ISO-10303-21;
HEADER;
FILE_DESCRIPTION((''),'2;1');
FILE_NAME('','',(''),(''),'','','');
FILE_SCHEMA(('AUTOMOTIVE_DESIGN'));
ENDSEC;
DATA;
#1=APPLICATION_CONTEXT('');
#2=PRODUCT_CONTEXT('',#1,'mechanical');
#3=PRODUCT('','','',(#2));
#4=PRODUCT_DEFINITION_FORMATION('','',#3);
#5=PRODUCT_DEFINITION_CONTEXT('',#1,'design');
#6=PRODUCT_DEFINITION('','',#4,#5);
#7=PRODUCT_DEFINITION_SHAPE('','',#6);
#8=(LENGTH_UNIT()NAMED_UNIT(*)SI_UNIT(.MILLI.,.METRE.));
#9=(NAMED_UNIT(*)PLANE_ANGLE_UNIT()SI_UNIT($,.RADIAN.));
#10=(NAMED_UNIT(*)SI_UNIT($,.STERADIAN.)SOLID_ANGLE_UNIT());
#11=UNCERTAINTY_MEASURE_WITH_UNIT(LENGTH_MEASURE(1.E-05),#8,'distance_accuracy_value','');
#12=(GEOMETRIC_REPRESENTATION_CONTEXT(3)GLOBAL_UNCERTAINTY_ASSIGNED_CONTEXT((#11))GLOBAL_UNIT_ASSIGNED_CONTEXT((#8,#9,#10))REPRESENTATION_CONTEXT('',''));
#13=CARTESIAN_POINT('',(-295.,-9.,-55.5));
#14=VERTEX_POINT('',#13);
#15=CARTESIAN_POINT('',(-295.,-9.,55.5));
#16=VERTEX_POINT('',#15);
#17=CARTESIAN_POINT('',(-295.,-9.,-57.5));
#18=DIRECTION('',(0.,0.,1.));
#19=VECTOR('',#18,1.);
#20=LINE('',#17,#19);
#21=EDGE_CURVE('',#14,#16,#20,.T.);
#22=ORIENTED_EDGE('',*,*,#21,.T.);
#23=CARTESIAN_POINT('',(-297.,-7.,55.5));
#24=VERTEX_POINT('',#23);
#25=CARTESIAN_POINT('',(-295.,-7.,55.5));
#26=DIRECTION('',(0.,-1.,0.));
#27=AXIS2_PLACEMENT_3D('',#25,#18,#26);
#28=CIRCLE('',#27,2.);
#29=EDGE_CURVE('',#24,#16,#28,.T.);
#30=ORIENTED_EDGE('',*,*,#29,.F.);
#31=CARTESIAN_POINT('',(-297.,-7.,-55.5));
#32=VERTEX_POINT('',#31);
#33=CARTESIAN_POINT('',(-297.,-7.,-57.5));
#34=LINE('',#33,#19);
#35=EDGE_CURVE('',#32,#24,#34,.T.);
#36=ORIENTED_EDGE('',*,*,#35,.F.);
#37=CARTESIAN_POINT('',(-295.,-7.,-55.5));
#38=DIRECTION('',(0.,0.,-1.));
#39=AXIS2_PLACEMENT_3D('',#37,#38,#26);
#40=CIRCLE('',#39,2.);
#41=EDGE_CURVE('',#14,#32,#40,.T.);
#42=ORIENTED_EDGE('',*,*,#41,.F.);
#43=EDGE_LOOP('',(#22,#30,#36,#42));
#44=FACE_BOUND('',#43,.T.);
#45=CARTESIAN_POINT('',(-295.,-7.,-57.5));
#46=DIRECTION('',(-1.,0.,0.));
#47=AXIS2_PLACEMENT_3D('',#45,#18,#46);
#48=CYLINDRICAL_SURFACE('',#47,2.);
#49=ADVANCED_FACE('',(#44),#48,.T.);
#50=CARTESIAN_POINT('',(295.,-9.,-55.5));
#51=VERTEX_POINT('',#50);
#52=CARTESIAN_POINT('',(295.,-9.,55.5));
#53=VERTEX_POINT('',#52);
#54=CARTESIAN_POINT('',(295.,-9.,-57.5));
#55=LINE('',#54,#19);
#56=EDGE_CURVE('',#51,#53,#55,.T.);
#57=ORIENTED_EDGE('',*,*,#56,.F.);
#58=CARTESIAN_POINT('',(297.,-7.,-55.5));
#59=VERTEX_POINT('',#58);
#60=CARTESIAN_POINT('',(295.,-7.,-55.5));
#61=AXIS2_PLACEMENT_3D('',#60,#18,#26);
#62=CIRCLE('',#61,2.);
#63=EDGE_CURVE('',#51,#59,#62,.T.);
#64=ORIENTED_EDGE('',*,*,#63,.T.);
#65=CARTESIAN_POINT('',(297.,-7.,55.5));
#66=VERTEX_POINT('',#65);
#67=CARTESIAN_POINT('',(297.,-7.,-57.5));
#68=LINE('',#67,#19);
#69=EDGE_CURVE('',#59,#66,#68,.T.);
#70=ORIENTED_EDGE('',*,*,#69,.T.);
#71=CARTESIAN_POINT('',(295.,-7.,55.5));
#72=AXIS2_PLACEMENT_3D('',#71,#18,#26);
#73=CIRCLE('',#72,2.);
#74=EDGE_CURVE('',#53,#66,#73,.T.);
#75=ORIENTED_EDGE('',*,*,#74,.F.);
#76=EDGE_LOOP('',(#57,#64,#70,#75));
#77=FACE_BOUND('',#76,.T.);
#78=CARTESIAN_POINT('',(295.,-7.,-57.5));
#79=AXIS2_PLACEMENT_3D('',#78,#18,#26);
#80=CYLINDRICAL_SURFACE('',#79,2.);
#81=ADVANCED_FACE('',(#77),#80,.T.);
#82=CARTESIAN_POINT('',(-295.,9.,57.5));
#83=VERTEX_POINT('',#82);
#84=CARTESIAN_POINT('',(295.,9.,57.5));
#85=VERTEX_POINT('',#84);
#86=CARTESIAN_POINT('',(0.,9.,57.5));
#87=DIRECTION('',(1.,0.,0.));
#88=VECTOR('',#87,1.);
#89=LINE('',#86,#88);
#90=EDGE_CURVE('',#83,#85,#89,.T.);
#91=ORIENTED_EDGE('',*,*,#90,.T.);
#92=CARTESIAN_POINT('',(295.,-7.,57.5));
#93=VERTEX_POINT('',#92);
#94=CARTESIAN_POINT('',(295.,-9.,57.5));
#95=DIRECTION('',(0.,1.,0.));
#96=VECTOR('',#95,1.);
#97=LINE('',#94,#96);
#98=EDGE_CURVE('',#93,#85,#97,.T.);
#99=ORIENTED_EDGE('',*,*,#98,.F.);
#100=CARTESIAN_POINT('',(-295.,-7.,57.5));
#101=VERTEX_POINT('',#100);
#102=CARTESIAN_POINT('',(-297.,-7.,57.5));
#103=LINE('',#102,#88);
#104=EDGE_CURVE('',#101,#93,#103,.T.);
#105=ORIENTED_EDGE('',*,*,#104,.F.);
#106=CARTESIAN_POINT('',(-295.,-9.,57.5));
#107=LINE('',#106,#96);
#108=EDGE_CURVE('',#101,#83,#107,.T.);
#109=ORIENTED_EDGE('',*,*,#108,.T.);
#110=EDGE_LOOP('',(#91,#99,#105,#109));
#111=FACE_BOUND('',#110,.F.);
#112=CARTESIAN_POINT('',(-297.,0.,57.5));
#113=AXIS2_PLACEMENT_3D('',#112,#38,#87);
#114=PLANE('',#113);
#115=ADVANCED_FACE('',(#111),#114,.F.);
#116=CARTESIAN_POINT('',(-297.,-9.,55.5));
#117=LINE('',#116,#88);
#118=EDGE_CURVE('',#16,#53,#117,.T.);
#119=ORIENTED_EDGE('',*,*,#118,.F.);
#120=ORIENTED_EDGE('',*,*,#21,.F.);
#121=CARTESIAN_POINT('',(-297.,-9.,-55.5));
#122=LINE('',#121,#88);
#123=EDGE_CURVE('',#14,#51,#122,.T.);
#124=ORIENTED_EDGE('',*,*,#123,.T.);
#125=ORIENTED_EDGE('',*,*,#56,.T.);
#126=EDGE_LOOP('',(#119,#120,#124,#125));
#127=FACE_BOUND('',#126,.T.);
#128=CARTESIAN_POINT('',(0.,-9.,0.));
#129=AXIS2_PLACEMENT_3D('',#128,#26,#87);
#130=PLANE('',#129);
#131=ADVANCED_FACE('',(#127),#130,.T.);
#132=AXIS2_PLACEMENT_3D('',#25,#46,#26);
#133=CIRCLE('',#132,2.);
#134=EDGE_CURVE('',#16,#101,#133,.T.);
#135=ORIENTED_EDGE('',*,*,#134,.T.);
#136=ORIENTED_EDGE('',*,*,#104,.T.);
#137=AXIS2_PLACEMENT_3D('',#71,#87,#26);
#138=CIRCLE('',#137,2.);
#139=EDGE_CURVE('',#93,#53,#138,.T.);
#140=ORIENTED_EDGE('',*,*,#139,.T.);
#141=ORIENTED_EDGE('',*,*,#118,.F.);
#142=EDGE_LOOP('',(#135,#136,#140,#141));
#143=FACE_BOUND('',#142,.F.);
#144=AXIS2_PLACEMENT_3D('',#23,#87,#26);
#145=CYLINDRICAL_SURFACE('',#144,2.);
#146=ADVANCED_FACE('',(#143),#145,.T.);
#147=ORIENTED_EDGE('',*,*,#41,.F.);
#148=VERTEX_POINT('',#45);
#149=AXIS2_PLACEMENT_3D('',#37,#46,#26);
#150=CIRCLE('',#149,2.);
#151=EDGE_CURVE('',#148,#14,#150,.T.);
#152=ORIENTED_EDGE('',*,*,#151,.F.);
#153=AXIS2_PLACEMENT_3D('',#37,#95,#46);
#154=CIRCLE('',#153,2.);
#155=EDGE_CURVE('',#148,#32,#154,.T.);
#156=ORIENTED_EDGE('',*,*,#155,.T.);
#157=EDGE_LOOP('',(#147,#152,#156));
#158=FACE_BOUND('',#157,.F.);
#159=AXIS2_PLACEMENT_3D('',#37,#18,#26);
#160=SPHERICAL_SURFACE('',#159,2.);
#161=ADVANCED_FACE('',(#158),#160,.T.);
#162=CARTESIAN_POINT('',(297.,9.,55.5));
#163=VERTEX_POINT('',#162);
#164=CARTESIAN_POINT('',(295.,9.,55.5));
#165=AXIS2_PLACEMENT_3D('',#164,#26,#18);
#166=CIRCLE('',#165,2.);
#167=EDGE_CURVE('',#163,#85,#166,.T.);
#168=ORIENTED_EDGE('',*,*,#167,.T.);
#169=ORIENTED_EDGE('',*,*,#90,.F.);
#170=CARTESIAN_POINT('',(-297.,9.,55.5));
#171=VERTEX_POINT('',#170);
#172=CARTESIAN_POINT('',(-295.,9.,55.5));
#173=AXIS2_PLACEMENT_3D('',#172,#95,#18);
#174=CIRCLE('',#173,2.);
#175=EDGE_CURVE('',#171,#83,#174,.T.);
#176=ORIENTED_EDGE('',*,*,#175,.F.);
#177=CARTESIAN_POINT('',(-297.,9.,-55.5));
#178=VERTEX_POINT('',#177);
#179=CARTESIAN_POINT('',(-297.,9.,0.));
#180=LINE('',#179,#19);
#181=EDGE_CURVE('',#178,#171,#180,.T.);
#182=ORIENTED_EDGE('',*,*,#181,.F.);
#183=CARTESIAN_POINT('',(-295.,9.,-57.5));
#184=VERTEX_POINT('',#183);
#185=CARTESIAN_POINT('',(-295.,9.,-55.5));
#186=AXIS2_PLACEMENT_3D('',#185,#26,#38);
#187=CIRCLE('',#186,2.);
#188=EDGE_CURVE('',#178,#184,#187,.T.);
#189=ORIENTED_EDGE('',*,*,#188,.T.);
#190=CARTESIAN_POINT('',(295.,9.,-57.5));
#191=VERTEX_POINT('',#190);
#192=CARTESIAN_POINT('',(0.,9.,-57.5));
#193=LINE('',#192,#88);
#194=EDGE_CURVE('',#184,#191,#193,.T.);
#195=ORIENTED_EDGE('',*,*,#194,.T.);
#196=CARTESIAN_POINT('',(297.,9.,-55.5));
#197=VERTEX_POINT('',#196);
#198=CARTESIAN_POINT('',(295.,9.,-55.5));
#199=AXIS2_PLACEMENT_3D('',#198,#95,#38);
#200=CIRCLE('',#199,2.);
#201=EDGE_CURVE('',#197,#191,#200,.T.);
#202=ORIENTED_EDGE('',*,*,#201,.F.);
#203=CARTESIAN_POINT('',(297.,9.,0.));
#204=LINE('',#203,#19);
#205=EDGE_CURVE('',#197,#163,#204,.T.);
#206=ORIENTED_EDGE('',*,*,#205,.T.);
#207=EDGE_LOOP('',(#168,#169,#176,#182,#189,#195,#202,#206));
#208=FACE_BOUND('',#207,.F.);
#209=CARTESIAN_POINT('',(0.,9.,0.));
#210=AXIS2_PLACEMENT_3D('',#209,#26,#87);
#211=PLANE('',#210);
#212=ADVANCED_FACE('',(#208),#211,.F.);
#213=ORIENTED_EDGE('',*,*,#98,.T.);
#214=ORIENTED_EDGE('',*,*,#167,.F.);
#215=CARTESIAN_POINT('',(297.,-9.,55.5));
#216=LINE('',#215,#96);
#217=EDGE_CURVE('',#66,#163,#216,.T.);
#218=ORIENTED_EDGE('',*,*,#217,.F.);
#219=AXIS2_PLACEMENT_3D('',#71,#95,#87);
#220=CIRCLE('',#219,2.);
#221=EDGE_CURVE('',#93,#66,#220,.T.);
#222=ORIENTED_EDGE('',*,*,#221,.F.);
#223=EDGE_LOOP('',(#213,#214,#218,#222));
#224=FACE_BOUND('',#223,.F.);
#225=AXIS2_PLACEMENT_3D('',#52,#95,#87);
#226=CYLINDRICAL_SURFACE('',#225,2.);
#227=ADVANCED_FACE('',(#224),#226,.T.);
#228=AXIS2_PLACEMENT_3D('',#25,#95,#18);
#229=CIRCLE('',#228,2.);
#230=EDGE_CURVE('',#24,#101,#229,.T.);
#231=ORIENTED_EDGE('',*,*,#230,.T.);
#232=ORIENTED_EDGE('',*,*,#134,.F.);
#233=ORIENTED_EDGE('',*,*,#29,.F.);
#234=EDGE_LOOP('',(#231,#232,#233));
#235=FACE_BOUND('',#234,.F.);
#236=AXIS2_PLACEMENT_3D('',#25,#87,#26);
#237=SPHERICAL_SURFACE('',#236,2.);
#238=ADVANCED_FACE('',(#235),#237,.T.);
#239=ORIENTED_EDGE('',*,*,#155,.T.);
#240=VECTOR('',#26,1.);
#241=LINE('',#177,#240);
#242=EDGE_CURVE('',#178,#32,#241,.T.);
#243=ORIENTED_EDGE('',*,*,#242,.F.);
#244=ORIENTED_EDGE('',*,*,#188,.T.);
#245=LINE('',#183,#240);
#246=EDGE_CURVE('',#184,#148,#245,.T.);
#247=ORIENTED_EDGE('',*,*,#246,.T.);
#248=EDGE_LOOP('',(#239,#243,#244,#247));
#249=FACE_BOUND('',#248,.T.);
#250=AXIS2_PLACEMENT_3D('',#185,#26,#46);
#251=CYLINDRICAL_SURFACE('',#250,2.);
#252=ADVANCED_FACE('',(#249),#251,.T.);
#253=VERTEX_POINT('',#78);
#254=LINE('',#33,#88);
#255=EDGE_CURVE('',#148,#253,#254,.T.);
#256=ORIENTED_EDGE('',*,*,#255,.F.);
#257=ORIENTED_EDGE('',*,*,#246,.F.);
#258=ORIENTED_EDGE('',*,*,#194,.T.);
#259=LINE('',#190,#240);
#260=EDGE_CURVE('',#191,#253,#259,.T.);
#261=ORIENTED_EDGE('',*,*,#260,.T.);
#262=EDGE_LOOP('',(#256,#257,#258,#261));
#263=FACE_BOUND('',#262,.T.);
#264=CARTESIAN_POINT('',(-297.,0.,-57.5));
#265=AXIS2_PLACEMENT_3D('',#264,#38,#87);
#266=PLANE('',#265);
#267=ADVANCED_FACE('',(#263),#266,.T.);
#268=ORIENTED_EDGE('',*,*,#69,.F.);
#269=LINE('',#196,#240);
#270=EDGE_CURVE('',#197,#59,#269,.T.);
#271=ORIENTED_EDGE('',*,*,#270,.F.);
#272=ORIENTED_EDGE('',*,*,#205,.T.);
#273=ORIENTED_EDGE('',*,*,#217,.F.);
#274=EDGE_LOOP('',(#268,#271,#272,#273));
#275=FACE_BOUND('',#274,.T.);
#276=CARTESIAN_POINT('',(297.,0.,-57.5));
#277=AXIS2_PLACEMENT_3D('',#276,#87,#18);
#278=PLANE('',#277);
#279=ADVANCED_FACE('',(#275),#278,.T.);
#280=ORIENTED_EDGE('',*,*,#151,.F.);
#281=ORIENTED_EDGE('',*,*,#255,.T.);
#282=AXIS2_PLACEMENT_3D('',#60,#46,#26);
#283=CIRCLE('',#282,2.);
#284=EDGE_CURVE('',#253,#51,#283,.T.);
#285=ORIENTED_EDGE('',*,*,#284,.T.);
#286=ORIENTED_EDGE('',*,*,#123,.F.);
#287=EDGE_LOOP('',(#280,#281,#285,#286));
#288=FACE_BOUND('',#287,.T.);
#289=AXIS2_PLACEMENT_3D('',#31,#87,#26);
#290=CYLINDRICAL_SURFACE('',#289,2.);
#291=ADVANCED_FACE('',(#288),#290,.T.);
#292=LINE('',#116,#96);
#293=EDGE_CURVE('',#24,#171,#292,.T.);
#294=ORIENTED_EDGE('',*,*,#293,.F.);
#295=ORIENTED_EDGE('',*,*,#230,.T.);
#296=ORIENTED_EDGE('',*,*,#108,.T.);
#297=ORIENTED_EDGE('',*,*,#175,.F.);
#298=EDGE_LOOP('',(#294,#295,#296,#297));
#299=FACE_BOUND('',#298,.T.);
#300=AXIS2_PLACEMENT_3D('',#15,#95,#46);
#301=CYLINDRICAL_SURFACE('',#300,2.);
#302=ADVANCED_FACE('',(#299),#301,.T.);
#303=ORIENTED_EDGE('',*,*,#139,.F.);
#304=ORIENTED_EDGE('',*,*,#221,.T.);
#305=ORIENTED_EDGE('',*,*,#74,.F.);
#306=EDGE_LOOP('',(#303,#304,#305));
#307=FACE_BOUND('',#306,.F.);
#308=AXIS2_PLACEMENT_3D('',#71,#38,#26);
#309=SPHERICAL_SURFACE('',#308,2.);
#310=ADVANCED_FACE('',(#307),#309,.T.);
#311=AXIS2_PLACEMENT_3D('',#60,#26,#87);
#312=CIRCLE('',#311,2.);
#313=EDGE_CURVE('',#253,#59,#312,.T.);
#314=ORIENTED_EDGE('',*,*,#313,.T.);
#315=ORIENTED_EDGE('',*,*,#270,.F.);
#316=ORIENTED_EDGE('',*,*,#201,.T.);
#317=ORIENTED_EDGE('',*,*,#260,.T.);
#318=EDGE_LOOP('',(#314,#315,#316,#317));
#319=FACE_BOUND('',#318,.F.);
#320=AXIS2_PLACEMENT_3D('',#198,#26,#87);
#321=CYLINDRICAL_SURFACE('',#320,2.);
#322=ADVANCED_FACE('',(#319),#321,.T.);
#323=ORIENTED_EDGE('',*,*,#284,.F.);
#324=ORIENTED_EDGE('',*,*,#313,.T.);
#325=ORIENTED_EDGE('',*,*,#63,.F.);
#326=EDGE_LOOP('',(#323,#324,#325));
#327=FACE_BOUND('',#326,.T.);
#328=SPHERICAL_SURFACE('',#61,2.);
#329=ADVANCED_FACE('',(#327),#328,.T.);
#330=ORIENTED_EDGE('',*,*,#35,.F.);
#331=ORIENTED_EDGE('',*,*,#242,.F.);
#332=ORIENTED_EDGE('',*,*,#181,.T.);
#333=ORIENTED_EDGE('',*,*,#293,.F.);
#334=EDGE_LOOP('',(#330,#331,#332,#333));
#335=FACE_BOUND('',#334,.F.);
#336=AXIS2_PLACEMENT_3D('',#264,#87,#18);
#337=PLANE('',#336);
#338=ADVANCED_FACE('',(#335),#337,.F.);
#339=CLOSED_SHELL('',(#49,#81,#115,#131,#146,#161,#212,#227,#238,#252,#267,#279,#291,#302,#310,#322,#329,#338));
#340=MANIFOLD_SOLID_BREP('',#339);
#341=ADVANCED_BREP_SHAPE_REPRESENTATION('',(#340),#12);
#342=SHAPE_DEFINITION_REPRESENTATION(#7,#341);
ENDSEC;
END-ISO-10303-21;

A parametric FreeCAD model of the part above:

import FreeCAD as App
import Part
import Sketcher

V = App.Vector
Q = App.Units.Quantity


def edges_at(feature, points):
    """Names of the edges that pass closest to the given points."""
    edges = feature.Shape.Edges
    near = lambda p: min(range(len(edges)), key=lambda i: edges[i].distToShape(Part.Vertex(*p))[0])
    return sorted({f"Edge{near(p) + 1}" for p in points})


def add_polygon(sketch, points):
    """Adds a closed chain of lines whose ends are joined by coincident constraints."""
    first, n = sketch.GeometryCount, len(points)
    for a, b in zip(points, points[1:] + points[:1]):
        sketch.addGeometry(Part.LineSegment(App.Vector(*a, 0), App.Vector(*b, 0)), False)
    for i in range(n):
        sketch.addConstraint(Sketcher.Constraint("Coincident", first + i, 2, first + (i + 1) % n, 1))

doc = App.newDocument("Part")
body = doc.addObject("PartDesign::Body", "Body")

# Sketch on XZ plane
sketch1 = doc.addObject("Sketcher::SketchObject", "Sketch")
body.addObject(sketch1)
sketch1.AttachmentSupport = (doc.XZ_Plane, [""])
sketch1.MapMode = "FlatFace"
add_polygon(sketch1, [(-297, 58), (-297, -58), (297, -58), (297, 58)])  # lines 0-3
sketch1.addConstraint([
    Sketcher.Constraint("Vertical", 0),
    Sketcher.Constraint("Horizontal", 1),
    Sketcher.Constraint("Vertical", 2),
    Sketcher.Constraint("Horizontal", 3),
    Sketcher.Constraint("Symmetric", 0, 2, 2, 2, -1, 1),
    Sketcher.Constraint("DistanceX", 1, 1, 1, 2, Q("594 mm")),
    Sketcher.Constraint("DistanceY", 0, 2, 0, 1, Q("115 mm")),
])
pad1 = doc.addObject("PartDesign::Pad", "Pad")
body.addObject(pad1)
pad1.Profile = sketch1
pad1.Length = 18
pad1.Midplane = True
doc.recompute()

fillet = doc.addObject("PartDesign::Fillet", "Fillet")
body.addObject(fillet)
fillet.Base = (pad1, edges_at(pad1, [
    (297, -9, 0),
    (0, -9, 57.5),
    (-297, -9, 0),
    (0, -9, -57.5),
    (-297, 0, 57.5),
    (-297, 0, -57.5),
    (297, 0, 57.5),
    (297, 0, -57.5),
]))
fillet.Radius = 2

doc.recompute()
